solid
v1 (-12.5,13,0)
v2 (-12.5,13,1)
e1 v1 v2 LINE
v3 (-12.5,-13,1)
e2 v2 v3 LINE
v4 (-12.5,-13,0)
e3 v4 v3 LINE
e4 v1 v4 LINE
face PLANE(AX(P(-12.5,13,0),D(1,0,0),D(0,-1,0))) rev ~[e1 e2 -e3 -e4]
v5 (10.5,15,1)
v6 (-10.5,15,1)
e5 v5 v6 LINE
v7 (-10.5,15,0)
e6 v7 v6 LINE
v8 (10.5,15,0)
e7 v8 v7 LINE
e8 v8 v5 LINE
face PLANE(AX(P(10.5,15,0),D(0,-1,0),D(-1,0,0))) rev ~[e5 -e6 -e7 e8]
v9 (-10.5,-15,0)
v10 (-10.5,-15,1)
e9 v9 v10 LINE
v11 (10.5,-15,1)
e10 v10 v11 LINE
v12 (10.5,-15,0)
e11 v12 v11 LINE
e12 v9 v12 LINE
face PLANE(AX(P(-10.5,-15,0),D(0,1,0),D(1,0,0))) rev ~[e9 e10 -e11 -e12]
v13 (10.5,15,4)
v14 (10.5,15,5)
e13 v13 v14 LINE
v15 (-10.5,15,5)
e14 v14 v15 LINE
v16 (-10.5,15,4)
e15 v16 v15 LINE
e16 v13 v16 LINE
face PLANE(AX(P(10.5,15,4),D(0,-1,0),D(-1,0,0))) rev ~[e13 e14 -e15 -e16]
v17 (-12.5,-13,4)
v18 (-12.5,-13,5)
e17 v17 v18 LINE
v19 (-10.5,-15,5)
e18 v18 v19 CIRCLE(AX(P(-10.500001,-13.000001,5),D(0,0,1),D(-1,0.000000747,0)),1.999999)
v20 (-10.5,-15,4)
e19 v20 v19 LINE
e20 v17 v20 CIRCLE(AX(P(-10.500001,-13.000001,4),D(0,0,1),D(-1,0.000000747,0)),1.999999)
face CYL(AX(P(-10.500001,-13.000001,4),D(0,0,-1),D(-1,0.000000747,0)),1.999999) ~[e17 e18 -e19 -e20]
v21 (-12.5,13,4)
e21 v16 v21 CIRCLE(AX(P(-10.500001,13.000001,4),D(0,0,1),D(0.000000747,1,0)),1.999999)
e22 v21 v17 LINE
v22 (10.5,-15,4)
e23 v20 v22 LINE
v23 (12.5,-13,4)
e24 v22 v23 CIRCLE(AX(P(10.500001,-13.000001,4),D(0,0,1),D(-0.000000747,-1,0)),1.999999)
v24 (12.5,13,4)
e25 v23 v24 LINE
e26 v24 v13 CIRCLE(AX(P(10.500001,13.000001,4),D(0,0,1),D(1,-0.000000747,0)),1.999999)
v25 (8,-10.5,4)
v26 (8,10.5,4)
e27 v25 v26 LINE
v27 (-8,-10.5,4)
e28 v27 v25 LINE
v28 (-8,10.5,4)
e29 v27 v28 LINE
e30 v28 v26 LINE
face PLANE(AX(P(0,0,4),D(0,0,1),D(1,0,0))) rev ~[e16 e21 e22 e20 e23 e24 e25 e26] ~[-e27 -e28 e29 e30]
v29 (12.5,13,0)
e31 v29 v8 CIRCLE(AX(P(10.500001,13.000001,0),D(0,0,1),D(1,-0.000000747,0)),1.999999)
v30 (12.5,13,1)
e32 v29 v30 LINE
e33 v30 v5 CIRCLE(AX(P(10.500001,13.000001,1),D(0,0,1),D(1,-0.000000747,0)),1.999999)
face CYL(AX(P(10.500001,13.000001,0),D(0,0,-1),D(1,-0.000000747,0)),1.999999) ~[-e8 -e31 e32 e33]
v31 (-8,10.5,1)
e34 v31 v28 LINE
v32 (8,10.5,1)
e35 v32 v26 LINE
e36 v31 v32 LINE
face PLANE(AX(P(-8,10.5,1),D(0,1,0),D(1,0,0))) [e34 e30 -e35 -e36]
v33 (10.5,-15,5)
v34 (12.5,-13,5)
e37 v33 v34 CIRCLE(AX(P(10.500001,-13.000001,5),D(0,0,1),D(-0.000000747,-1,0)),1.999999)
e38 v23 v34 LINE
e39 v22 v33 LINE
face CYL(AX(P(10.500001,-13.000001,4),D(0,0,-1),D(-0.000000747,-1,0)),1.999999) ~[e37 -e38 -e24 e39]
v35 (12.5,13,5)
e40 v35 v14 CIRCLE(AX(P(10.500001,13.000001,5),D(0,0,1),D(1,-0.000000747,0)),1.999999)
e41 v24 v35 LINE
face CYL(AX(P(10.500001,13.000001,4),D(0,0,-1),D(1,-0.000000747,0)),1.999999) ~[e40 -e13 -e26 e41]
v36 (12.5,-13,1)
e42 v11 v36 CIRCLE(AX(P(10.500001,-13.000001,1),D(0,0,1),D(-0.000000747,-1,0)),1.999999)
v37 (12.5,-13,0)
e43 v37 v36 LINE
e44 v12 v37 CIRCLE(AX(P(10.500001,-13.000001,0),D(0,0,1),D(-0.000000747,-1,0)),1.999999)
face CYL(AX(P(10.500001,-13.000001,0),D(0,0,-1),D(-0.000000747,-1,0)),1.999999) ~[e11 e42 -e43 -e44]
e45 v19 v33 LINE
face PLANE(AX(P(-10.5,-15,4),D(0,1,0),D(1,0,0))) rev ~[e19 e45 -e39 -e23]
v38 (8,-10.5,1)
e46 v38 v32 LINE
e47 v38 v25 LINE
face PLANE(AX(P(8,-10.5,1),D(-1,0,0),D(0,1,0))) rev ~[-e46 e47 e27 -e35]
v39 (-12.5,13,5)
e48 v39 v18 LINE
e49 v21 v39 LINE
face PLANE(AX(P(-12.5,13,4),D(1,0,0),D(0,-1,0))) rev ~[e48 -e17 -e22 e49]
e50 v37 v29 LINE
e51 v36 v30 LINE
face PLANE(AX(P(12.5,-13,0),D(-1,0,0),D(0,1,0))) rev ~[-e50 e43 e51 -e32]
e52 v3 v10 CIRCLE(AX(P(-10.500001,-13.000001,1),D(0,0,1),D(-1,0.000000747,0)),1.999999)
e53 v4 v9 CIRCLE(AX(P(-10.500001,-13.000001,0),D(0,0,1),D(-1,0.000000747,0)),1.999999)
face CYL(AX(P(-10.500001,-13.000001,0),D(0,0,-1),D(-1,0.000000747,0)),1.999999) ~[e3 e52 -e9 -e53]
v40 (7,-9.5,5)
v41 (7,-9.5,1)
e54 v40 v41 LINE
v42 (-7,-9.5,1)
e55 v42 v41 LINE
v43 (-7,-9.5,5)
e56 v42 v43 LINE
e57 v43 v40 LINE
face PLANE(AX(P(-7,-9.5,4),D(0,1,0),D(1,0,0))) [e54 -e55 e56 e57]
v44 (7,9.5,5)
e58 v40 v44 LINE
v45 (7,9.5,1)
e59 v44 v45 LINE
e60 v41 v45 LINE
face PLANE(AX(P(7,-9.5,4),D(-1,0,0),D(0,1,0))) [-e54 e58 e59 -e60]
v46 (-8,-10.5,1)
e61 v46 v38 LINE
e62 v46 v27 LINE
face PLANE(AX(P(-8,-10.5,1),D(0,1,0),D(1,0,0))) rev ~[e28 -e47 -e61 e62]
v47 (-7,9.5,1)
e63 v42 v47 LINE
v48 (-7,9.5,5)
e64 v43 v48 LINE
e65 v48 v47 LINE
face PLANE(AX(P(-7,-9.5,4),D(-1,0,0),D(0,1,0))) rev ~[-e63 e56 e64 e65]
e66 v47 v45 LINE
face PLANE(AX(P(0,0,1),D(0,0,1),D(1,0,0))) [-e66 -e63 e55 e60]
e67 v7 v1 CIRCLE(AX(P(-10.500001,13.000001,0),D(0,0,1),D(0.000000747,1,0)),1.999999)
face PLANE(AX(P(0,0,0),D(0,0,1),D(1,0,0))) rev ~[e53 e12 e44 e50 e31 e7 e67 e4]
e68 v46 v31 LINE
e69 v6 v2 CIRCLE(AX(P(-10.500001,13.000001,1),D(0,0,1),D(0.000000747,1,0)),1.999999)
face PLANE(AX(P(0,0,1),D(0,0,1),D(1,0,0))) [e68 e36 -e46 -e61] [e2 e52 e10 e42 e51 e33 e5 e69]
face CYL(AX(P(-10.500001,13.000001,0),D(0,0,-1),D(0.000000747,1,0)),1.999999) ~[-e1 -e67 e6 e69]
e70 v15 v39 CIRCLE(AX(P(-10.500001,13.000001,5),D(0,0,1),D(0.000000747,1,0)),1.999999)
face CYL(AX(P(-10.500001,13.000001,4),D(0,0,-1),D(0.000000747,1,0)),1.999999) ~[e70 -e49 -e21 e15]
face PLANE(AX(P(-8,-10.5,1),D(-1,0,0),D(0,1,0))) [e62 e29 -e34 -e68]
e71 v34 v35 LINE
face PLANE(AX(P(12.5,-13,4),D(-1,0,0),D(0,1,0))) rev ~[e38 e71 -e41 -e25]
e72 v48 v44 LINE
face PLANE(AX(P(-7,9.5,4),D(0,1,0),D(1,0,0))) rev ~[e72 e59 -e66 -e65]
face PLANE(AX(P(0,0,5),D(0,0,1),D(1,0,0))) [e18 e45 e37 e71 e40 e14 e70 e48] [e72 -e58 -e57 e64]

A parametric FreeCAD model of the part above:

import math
import FreeCAD as App
import Part
import Sketcher
Q = App.Units.Quantity


def add_polygon(sketch, points):
    """Adds a closed chain of lines whose ends are joined by coincident constraints."""
    first, n = sketch.GeometryCount, len(points)
    for a, b in zip(points, points[1:] + points[:1]):
        sketch.addGeometry(Part.LineSegment(App.Vector(*a, 0), App.Vector(*b, 0)), False)
    for i in range(n):
        sketch.addConstraint(Sketcher.Constraint("Coincident", first + i, 2, first + (i + 1) % n, 1))

doc = App.newDocument("Part")
params = doc.addObject("Spreadsheet::Sheet", "Params")
for row, (alias, value) in enumerate([
    ("sketch1_radius", "1.999999 mm"),
    ("sketch1_width", "21 mm"),
    ("sketch1_height", "26 mm"),
    ("pad1_length", "1 mm"),
    ("sketch2_width", "16 mm"),
    ("sketch2_width2", "14 mm"),
    ("sketch2_height", "21 mm"),
    ("sketch2_height2", "19 mm"),
    ("pad2_length", "3 mm"),
    ("sketch3_radius", "1.999999 mm"),
    ("sketch3_width", "21 mm"),
    ("sketch3_width2", "14 mm"),
    ("sketch3_height", "26 mm"),
    ("sketch3_height2", "19 mm"),
    ("pad3_length", "1 mm"),
], start=1):
    params.set(f"A{row}", alias)
    params.set(f"B{row}", "=" + value)
    params.setAlias(f"B{row}", alias)

body = doc.addObject("PartDesign::Body", "Body")

# Sketch on XY plane
sketch1 = body.newObject("Sketcher::SketchObject", "Sketch")
sketch1.AttachmentSupport = (doc.getObject("XY_Plane"), [""])
sketch1.MapMode = "FlatFace"
sketch1.addGeometry([
    Part.ArcOfCircle(Part.Circle(App.Vector(10.5, 13, 0), App.Vector(0, 0, 1), 2), math.radians(0), math.radians(90)),  # 0
    Part.LineSegment(App.Vector(10.5, 15, 0), App.Vector(-10.5, 15, 0)),  # 1
    Part.ArcOfCircle(Part.Circle(App.Vector(-10.5, 13, 0), App.Vector(0, 0, 1), 2), math.radians(90), math.radians(180)),  # 2
    Part.LineSegment(App.Vector(-12.5, 13, 0), App.Vector(-12.5, -13, 0)),  # 3
    Part.ArcOfCircle(Part.Circle(App.Vector(-10.5, -13, 0), App.Vector(0, 0, 1), 2), math.radians(180), math.radians(270)),  # 4
    Part.LineSegment(App.Vector(-10.5, -15, 0), App.Vector(10.5, -15, 0)),  # 5
    Part.ArcOfCircle(Part.Circle(App.Vector(10.5, -13, 0), App.Vector(0, 0, 1), 2), math.radians(-90), math.radians(0)),  # 6
    Part.LineSegment(App.Vector(12.5, -13, 0), App.Vector(12.5, 13, 0)),  # 7
], False)
sketch1.addConstraint([
    Sketcher.Constraint("Tangent", 0, 2, 1, 1),
    Sketcher.Constraint("Tangent", 1, 2, 2, 1),
    Sketcher.Constraint("Tangent", 2, 2, 3, 1),
    Sketcher.Constraint("Tangent", 3, 2, 4, 1),
    Sketcher.Constraint("Tangent", 4, 2, 5, 1),
    Sketcher.Constraint("Tangent", 5, 2, 6, 1),
    Sketcher.Constraint("Tangent", 6, 2, 7, 1),
    Sketcher.Constraint("Tangent", 7, 2, 0, 1),
    Sketcher.Constraint("Horizontal", 1),
    Sketcher.Constraint("Vertical", 3),
    Sketcher.Constraint("Horizontal", 5),
    Sketcher.Constraint("Vertical", 7),
    Sketcher.Constraint("Equal", 0, 2),
    Sketcher.Constraint("Equal", 2, 4),
    Sketcher.Constraint("Equal", 4, 6),
    Sketcher.Constraint("Symmetric", 0, 3, 4, 3, -1, 1),
    Sketcher.Constraint("Radius", 0, Q("1.999999 mm")),
    Sketcher.Constraint("DistanceX", 1, 2, 1, 1, Q("21 mm")),
    Sketcher.Constraint("DistanceY", 3, 2, 3, 1, Q("26 mm")),
])
sketch1.setExpression("Constraints[16]", "Params.sketch1_radius")
sketch1.setExpression("Constraints[17]", "Params.sketch1_width")
sketch1.setExpression("Constraints[18]", "Params.sketch1_height")
pad1 = body.newObject("PartDesign::Pad", "Pad")
pad1.Profile = sketch1
pad1.setExpression("Length", "Params.pad1_length")

# Sketch on XY plane
sketch2 = body.newObject("Sketcher::SketchObject", "Sketch001")
sketch2.AttachmentSupport = (doc.getObject("XY_Plane"), [""])
sketch2.MapMode = "FlatFace"
sketch2.AttachmentOffset = App.Placement(App.Vector(0, 0, 1), App.Rotation())
add_polygon(sketch2, [(-8, 10), (-8, -10), (8, -10), (8, 10)])  # lines 0-3
add_polygon(sketch2, [(7, -10), (-7, -10), (-7, 10), (7, 10)])  # lines 4-7
sketch2.addConstraint([
    Sketcher.Constraint("Vertical", 0),
    Sketcher.Constraint("Horizontal", 1),
    Sketcher.Constraint("Vertical", 2),
    Sketcher.Constraint("Horizontal", 3),
    Sketcher.Constraint("Horizontal", 4),
    Sketcher.Constraint("Vertical", 5),
    Sketcher.Constraint("Horizontal", 6),
    Sketcher.Constraint("Vertical", 7),
    Sketcher.Constraint("Symmetric", 0, 2, 2, 2, -1, 1),
    Sketcher.Constraint("Symmetric", 4, 2, 6, 2, -1, 1),
    Sketcher.Constraint("DistanceX", 1, 1, 1, 2, Q("16 mm")),
    Sketcher.Constraint("DistanceX", 4, 2, 4, 1, Q("14 mm")),
    Sketcher.Constraint("DistanceY", 0, 2, 0, 1, Q("21 mm")),
    Sketcher.Constraint("DistanceY", 5, 1, 5, 2, Q("19 mm")),
])
sketch2.setExpression("Constraints[18]", "Params.sketch2_width")
sketch2.setExpression("Constraints[19]", "Params.sketch2_width2")
sketch2.setExpression("Constraints[20]", "Params.sketch2_height")
sketch2.setExpression("Constraints[21]", "Params.sketch2_height2")
pad2 = body.newObject("PartDesign::Pad", "Pad001")
pad2.Profile = sketch2
pad2.setExpression("Length", "Params.pad2_length")

# Sketch on XY plane
sketch3 = body.newObject("Sketcher::SketchObject", "Sketch002")
sketch3.AttachmentSupport = (doc.getObject("XY_Plane"), [""])
sketch3.MapMode = "FlatFace"
sketch3.AttachmentOffset = App.Placement(App.Vector(0, 0, 4), App.Rotation())
sketch3.addGeometry(Part.ArcOfCircle(Part.Circle(App.Vector(10.5, 13, 0), App.Vector(0, 0, 1), 2), math.radians(0), math.radians(90)), False)  # 0
sketch3.addGeometry(Part.LineSegment(App.Vector(10.5, 15, 0), App.Vector(-10.5, 15, 0)), False)  # 1
sketch3.addGeometry(Part.ArcOfCircle(Part.Circle(App.Vector(-10.5, 13, 0), App.Vector(0, 0, 1), 2), math.radians(90), math.radians(180)), False)  # 2
sketch3.addGeometry(Part.LineSegment(App.Vector(-12.5, 13, 0), App.Vector(-12.5, -13, 0)), False)  # 3
sketch3.addGeometry(Part.ArcOfCircle(Part.Circle(App.Vector(-10.5, -13, 0), App.Vector(0, 0, 1), 2), math.radians(180), math.radians(270)), False)  # 4
sketch3.addGeometry(Part.LineSegment(App.Vector(-10.5, -15, 0), App.Vector(10.5, -15, 0)), False)  # 5
sketch3.addGeometry(Part.ArcOfCircle(Part.Circle(App.Vector(10.5, -13, 0), App.Vector(0, 0, 1), 2), math.radians(-90), math.radians(0)), False)  # 6
sketch3.addGeometry(Part.LineSegment(App.Vector(12.5, -13, 0), App.Vector(12.5, 13, 0)), False)  # 7
add_polygon(sketch3, [(7, -9.5), (-7, -9.5), (-7, 9.5), (7, 9.5)])  # lines 8-11
sketch3.addConstraint([
    Sketcher.Constraint("Tangent", 0, 2, 1, 1),
    Sketcher.Constraint("Tangent", 1, 2, 2, 1),
    Sketcher.Constraint("Tangent", 2, 2, 3, 1),
    Sketcher.Constraint("Tangent", 3, 2, 4, 1),
    Sketcher.Constraint("Tangent", 4, 2, 5, 1),
    Sketcher.Constraint("Tangent", 5, 2, 6, 1),
    Sketcher.Constraint("Tangent", 6, 2, 7, 1),
    Sketcher.Constraint("Tangent", 7, 2, 0, 1),
    Sketcher.Constraint("Horizontal", 1),
    Sketcher.Constraint("Vertical", 3),
    Sketcher.Constraint("Horizontal", 5),
    Sketcher.Constraint("Vertical", 7),
    Sketcher.Constraint("Horizontal", 8),
    Sketcher.Constraint("Vertical", 9),
    Sketcher.Constraint("Horizontal", 10),
    Sketcher.Constraint("Vertical", 11),
    Sketcher.Constraint("Equal", 0, 2),
    Sketcher.Constraint("Equal", 2, 4),
    Sketcher.Constraint("Equal", 4, 6),
    Sketcher.Constraint("Symmetric", 0, 3, 4, 3, -1, 1),
    Sketcher.Constraint("Symmetric", 8, 2, 10, 2, -1, 1),
    Sketcher.Constraint("Radius", 0, Q("1.999999 mm")),
    Sketcher.Constraint("DistanceX", 1, 2, 1, 1, Q("21 mm")),
    Sketcher.Constraint("DistanceX", 8, 2, 8, 1, Q("14 mm")),
    Sketcher.Constraint("DistanceY", 3, 2, 3, 1, Q("26 mm")),
    Sketcher.Constraint("DistanceY", 9, 1, 9, 2, Q("19 mm")),
])
sketch3.setExpression("Constraints[25]", "Params.sketch3_radius")
sketch3.setExpression("Constraints[26]", "Params.sketch3_width")
sketch3.setExpression("Constraints[27]", "Params.sketch3_width2")
sketch3.setExpression("Constraints[28]", "Params.sketch3_height")
sketch3.setExpression("Constraints[29]", "Params.sketch3_height2")
pad3 = body.newObject("PartDesign::Pad", "Pad002")
pad3.Profile = sketch3
pad3.setExpression("Length", "Params.pad3_length")

doc.recompute()
